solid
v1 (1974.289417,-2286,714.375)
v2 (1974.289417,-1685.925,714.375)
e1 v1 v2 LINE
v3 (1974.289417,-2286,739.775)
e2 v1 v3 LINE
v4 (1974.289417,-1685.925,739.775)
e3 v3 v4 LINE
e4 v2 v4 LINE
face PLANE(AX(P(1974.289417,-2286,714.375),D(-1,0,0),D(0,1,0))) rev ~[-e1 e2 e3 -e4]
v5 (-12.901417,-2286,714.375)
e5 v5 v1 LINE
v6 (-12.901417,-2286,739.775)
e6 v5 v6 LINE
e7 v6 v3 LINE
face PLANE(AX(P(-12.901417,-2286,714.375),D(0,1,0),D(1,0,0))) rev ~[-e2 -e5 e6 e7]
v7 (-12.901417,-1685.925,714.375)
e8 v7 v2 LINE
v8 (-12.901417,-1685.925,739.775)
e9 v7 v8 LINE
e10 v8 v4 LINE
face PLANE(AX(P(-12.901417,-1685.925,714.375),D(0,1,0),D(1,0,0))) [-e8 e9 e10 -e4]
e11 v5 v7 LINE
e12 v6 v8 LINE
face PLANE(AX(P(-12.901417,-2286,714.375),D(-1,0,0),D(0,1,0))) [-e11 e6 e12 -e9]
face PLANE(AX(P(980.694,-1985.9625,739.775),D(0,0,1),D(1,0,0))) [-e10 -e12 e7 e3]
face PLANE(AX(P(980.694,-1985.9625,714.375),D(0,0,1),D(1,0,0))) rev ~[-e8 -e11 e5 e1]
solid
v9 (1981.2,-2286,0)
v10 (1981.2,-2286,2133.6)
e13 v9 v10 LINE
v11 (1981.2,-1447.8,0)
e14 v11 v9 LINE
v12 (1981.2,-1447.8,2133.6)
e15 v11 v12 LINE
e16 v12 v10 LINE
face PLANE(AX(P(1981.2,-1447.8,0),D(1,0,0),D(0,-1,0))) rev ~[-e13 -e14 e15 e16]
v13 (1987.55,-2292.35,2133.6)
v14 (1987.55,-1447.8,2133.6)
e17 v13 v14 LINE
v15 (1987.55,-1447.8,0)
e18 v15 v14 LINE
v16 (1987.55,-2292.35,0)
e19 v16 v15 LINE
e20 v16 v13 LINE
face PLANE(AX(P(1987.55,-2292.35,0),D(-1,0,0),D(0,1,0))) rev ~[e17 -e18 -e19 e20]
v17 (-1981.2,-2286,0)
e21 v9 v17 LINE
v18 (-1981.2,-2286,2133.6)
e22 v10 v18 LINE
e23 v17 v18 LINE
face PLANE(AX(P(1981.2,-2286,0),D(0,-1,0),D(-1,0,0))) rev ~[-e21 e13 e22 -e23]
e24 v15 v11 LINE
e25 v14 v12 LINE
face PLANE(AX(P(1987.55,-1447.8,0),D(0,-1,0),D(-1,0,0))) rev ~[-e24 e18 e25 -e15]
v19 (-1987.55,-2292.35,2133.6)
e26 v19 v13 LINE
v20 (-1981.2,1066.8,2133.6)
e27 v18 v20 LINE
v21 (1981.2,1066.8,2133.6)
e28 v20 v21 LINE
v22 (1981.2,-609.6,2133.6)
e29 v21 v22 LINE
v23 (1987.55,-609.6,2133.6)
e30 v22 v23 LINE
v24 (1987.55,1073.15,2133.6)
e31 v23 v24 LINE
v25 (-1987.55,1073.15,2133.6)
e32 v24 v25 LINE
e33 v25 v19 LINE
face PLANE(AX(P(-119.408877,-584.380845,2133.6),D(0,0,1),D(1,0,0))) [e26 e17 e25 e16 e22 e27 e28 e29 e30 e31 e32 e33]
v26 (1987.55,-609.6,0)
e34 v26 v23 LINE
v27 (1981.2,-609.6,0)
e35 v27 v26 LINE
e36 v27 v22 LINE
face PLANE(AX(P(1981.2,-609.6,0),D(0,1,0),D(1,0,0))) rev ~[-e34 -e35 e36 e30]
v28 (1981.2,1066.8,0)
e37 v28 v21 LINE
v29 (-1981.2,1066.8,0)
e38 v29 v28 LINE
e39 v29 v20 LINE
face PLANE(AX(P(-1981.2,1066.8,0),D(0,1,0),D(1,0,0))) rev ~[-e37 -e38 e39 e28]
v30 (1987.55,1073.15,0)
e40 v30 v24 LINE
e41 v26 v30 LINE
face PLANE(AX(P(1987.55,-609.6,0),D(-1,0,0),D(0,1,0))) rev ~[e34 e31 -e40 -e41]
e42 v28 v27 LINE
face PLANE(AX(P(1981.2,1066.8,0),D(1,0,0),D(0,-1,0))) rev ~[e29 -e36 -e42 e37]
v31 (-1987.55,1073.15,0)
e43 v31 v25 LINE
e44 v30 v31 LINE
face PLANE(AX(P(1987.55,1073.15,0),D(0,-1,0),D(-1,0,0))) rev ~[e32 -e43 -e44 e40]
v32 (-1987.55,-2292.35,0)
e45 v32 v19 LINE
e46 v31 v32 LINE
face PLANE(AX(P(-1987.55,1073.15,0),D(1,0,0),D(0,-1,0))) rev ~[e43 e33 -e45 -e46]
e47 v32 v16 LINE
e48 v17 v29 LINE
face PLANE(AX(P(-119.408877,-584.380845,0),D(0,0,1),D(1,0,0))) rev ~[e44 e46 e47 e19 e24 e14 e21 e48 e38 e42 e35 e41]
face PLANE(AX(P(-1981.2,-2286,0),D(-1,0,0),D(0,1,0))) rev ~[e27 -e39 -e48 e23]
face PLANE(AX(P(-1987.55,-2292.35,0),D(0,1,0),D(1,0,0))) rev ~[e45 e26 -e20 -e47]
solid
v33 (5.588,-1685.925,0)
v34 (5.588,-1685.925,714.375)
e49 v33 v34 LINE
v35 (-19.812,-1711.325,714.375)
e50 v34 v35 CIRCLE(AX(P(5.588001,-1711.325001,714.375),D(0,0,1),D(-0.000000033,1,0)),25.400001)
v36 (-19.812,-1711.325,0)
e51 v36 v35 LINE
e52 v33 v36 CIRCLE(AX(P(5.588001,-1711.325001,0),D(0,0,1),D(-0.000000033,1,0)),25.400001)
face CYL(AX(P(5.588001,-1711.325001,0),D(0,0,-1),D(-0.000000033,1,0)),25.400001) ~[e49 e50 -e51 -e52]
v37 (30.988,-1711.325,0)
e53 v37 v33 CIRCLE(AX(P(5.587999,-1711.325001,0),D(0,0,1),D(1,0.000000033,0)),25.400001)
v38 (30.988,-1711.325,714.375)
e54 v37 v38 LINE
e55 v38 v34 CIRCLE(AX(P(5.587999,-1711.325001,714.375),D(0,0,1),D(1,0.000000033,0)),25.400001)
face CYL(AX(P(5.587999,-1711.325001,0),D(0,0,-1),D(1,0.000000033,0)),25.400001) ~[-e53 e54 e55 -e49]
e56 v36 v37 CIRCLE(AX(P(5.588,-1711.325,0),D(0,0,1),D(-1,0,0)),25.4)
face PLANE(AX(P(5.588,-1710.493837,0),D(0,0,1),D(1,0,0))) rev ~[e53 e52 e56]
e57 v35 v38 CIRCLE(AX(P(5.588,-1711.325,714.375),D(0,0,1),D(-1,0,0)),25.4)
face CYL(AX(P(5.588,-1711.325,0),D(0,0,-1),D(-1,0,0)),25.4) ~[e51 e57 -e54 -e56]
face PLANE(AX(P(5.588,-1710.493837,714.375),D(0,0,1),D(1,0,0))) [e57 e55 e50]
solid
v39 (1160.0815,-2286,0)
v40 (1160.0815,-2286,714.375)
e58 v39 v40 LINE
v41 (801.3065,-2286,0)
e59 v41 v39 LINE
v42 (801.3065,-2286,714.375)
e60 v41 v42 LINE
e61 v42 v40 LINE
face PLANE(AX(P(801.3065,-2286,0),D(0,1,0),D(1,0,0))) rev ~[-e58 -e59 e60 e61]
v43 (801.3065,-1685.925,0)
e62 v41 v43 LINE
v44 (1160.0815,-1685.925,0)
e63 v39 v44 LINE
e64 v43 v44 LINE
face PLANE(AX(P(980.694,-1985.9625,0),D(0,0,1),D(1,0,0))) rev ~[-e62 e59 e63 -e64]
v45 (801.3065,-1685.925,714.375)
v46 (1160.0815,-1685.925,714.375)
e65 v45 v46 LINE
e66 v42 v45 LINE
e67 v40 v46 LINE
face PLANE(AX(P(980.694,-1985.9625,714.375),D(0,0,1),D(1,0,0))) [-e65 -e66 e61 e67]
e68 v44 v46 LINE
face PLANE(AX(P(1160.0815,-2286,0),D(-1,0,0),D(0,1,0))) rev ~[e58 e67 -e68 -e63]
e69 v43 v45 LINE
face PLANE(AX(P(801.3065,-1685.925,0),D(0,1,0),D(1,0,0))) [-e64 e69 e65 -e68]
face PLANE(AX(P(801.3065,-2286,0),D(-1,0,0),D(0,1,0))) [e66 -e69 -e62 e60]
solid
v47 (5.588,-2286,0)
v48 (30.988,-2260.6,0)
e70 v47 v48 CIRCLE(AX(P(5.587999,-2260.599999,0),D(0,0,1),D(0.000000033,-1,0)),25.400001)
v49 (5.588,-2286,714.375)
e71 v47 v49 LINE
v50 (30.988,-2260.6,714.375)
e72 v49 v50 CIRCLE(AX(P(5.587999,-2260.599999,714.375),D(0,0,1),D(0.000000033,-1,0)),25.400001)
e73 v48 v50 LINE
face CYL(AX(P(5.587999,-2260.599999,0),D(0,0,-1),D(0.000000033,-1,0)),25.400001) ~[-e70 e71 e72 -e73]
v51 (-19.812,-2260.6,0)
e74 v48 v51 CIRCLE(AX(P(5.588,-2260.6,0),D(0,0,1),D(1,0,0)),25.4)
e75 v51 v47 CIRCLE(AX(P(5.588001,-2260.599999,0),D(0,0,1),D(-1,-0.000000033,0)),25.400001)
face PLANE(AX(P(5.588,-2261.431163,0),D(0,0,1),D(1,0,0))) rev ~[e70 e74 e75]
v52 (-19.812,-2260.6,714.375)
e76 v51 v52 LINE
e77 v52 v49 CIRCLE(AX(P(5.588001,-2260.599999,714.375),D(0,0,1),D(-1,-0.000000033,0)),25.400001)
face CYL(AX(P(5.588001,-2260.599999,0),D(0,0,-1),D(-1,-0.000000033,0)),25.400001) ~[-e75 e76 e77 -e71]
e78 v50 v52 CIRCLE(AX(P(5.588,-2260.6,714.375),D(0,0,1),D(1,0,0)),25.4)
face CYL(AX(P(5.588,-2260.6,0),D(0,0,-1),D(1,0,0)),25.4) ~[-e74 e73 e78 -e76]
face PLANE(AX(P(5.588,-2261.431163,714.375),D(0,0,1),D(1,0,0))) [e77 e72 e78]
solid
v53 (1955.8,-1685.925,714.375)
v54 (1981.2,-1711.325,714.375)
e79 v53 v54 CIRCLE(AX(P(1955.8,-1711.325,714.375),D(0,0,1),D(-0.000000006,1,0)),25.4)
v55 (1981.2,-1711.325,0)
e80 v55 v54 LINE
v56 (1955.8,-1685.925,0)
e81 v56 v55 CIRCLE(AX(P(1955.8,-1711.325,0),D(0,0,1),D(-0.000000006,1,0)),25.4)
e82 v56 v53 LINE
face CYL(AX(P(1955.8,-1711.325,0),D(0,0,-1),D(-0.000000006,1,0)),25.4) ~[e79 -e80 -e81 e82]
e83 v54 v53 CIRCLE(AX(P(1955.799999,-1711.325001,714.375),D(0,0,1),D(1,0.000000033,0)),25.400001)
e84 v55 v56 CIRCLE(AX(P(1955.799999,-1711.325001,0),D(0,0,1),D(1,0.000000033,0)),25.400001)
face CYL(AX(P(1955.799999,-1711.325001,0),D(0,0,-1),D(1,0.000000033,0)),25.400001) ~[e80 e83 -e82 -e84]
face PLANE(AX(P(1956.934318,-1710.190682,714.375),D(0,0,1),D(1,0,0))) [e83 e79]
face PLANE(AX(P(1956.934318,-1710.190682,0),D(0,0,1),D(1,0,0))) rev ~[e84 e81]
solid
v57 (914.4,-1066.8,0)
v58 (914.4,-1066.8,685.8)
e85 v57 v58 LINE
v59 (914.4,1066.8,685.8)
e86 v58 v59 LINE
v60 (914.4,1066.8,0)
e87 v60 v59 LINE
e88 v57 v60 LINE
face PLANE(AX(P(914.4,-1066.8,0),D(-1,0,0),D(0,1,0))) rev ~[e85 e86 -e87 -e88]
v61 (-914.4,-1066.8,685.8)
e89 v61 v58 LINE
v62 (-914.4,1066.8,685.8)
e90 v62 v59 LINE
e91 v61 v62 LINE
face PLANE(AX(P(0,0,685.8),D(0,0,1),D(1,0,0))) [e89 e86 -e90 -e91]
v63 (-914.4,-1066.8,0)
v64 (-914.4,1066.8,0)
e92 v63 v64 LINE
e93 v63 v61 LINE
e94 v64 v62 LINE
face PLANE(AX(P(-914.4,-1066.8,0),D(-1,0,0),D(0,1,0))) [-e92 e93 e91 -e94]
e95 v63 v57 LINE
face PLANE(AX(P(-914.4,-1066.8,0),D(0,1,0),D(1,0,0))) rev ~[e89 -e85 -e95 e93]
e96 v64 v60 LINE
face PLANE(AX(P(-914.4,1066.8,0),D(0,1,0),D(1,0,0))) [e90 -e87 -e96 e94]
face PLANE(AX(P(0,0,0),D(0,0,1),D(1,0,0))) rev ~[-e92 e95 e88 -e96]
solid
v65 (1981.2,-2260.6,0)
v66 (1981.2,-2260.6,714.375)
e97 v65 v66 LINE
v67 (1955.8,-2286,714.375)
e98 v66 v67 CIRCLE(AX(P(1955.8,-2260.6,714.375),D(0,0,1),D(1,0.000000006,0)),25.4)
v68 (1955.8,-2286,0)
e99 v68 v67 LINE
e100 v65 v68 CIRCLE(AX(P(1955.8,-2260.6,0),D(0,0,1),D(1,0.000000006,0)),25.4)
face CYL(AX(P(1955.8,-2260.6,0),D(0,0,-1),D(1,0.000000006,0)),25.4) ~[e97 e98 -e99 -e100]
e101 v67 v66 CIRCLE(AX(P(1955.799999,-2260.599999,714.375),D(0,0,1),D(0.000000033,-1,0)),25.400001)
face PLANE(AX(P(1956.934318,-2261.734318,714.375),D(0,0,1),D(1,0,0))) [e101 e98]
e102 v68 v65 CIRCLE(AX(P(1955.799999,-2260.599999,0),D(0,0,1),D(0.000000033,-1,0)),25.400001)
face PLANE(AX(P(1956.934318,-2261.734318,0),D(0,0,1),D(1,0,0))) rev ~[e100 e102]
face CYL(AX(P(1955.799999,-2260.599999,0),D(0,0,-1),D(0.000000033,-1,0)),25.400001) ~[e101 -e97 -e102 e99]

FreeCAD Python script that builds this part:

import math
import FreeCAD as App
import Part
import Sketcher
from FreeCAD import Vector
Q = App.Units.Quantity


def add_polygon(sketch, points):
    """Adds a closed chain of lines whose ends are joined by coincident constraints."""
    first, n = sketch.GeometryCount, len(points)
    for a, b in zip(points, points[1:] + points[:1]):
        sketch.addGeometry(Part.LineSegment(App.Vector(*a, 0), App.Vector(*b, 0)), False)
    for i in range(n):
        sketch.addConstraint(Sketcher.Constraint("Coincident", first + i, 2, first + (i + 1) % n, 1))

doc = App.newDocument("Part")
body = doc.addObject("PartDesign::Body", "Body")

# Sketch on XY plane
sketch1 = body.newObject("Sketcher::SketchObject", "Sketch")
sketch1.AttachmentSupport = (doc.getObject("XY_Plane"), [""])
sketch1.MapMode = "FlatFace"
add_polygon(sketch1, [(-914, 1067), (-914, -1067), (914, -1067), (914, 1067)])  # lines 0-3
sketch1.addConstraint(Sketcher.Constraint("Vertical", 0))
sketch1.addConstraint(Sketcher.Constraint("Horizontal", 1))
sketch1.addConstraint(Sketcher.Constraint("Vertical", 2))
sketch1.addConstraint(Sketcher.Constraint("Horizontal", 3))
sketch1.addConstraint(Sketcher.Constraint("Symmetric", 0, 2, 2, 2, -1, 1))
sketch1.addConstraint(Sketcher.Constraint("DistanceX", 1, 1, 1, 2, Q("72 in")))
sketch1.addConstraint(Sketcher.Constraint("DistanceY", 0, 2, 0, 1, Q("84 in")))
pad1 = body.newObject("PartDesign::Pad", "Pad")
pad1.Profile = sketch1
pad1.Length = Q("27 in")
body2 = doc.addObject("PartDesign::Body", "Body001")
body2.AllowCompound = True

# Sketch on XY plane
sketch2 = body2.newObject("Sketcher::SketchObject", "Sketch001")
sketch2.AttachmentSupport = (doc.getObject("XY_Plane001"), [""])
sketch2.MapMode = "FlatFace"
add_polygon(sketch2, [(801, -1686), (801, -2286), (1160, -2286), (1160, -1686)])  # lines 0-3
sketch2.addGeometry(Part.ArcOfCircle(Part.Circle(Vector(1956, -2261, 0), Vector(0, 0, 1), 25), math.radians(-90), math.radians(0)), False)  # 4
sketch2.addGeometry(Part.ArcOfCircle(Part.Circle(Vector(1956, -2261, 0), Vector(0, 0, 1), 25), math.radians(0), math.radians(270)), False)  # 5
sketch2.addGeometry(Part.ArcOfCircle(Part.Circle(Vector(1956, -1711, 0), Vector(0, 0, 1), 25), math.radians(90), math.radians(360)), False)  # 6
sketch2.addGeometry(Part.ArcOfCircle(Part.Circle(Vector(1956, -1711, 0), Vector(0, 0, 1), 25), math.radians(0), math.radians(90)), False)  # 7
sketch2.addGeometry(Part.ArcOfCircle(Part.Circle(Vector(6, -2261, 0), Vector(0, 0, 1), 25), math.radians(-180), math.radians(-90)), False)  # 8
sketch2.addGeometry(Part.ArcOfCircle(Part.Circle(Vector(6, -2261, 0), Vector(0, 0, 1), 25), math.radians(-90), math.radians(0)), False)  # 9
sketch2.addGeometry(Part.ArcOfCircle(Part.Circle(Vector(6, -2261, 0), Vector(0, 0, 1), 25), math.radians(0), math.radians(180)), False)  # 10
sketch2.addGeometry(Part.ArcOfCircle(Part.Circle(Vector(6, -1711, 0), Vector(0, 0, 1), 25), math.radians(90), math.radians(180)), False)  # 11
sketch2.addGeometry(Part.ArcOfCircle(Part.Circle(Vector(6, -1711, 0), Vector(0, 0, 1), 25), math.radians(180), math.radians(360)), False)  # 12
sketch2.addGeometry(Part.ArcOfCircle(Part.Circle(Vector(6, -1711, 0), Vector(0, 0, 1), 25), math.radians(0), math.radians(90)), False)  # 13
sketch2.addConstraint(Sketcher.Constraint("Tangent", 4, 1, 5, 2))
sketch2.addConstraint(Sketcher.Constraint("Coincident", 5, 1, 4, 2))
sketch2.addConstraint(Sketcher.Constraint("Tangent", 6, 1, 7, 2))
sketch2.addConstraint(Sketcher.Constraint("Coincident", 7, 1, 6, 2))
sketch2.addConstraint(Sketcher.Constraint("Tangent", 8, 2, 9, 1))
sketch2.addConstraint(Sketcher.Constraint("Tangent", 9, 2, 10, 1))
sketch2.addConstraint(Sketcher.Constraint("Tangent", 10, 2, 8, 1))
sketch2.addConstraint(Sketcher.Constraint("Tangent", 11, 2, 12, 1))
sketch2.addConstraint(Sketcher.Constraint("Tangent", 12, 2, 13, 1))
sketch2.addConstraint(Sketcher.Constraint("Tangent", 13, 2, 11, 1))
sketch2.addConstraint(Sketcher.Constraint("Vertical", 0))
sketch2.addConstraint(Sketcher.Constraint("Horizontal", 1))
sketch2.addConstraint(Sketcher.Constraint("Vertical", 2))
sketch2.addConstraint(Sketcher.Constraint("Horizontal", 3))
sketch2.addConstraint(Sketcher.Constraint("Equal", 5, 6))
sketch2.addConstraint(Sketcher.Constraint("Equal", 7, 8))
sketch2.addConstraint(Sketcher.Constraint("Equal", 10, 11))
sketch2.addConstraint(Sketcher.Constraint("Horizontal", 5, 3, 8, 3))
sketch2.addConstraint(Sketcher.Constraint("Horizontal", 7, 3, 11, 3))
sketch2.addConstraint(Sketcher.Constraint("Horizontal", 1, 2, 4, 1))
sketch2.addConstraint(Sketcher.Constraint("Horizontal", 10, 3, 5, 1))
sketch2.addConstraint(Sketcher.Constraint("Horizontal", 3, 2, 6, 1))
sketch2.addConstraint(Sketcher.Constraint("Horizontal", 13, 3, 7, 1))
sketch2.addConstraint(Sketcher.Constraint("Horizontal", 5, 1, 9, 2))
sketch2.addConstraint(Sketcher.Constraint("Horizontal", 9, 2, 10, 2))
sketch2.addConstraint(Sketcher.Constraint("Horizontal", 7, 1, 11, 2))
sketch2.addConstraint(Sketcher.Constraint("Horizontal", 11, 2, 12, 2))
sketch2.addConstraint(Sketcher.Constraint("Vertical", 5, 3, 6, 3))
sketch2.addConstraint(Sketcher.Constraint("Vertical", 10, 3, 11, 3))
sketch2.addConstraint(Sketcher.Constraint("Vertical", 7, 3, 4, 1))
sketch2.addConstraint(Sketcher.Constraint("Vertical", 4, 1, 6, 1))
sketch2.addConstraint(Sketcher.Constraint("Vertical", 13, 3, 8, 2))
sketch2.addConstraint(Sketcher.Constraint("Vertical", 8, 2, 13, 2))
sketch2.addConstraint(Sketcher.Constraint("Radius", 4, Q("1 in")))
sketch2.addConstraint(Sketcher.Constraint("DistanceX", -1, 1, 4, 3, Q("77 in")))
sketch2.addConstraint(Sketcher.Constraint("DistanceY", 4, 3, -1, 1, Q("89 in")))
sketch2.addConstraint(Sketcher.Constraint("DistanceX", 1, 1, 1, 2, Q("14.125 in")))
sketch2.addConstraint(Sketcher.Constraint("DistanceY", 0, 2, 0, 1, Q("23.625 in")))
sketch2.addConstraint(Sketcher.Constraint("DistanceX", -1, 1, 8, 3, Q("0.22 in")))
sketch2.addConstraint(Sketcher.Constraint("DistanceX", -1, 1, 0, 2, Q("31.5475 in")))
pad2 = body2.newObject("PartDesign::Pad", "Pad001")
pad2.Profile = sketch2
pad2.Length = Q("28.125 in")
body3 = doc.addObject("PartDesign::Body", "Body002")

# Sketch on XY plane
sketch3 = body3.newObject("Sketcher::SketchObject", "Sketch002")
sketch3.AttachmentSupport = (doc.getObject("XY_Plane002"), [""])
sketch3.MapMode = "FlatFace"
sketch3.AttachmentOffset = App.Placement(Vector(0, 0, 28.125 * 25.4), App.Rotation())
add_polygon(sketch3, [(-13, -1686), (-13, -2286), (1974, -2286), (1974, -1686)])  # lines 0-3
sketch3.addConstraint(Sketcher.Constraint("Vertical", 0))
sketch3.addConstraint(Sketcher.Constraint("Horizontal", 1))
sketch3.addConstraint(Sketcher.Constraint("Vertical", 2))
sketch3.addConstraint(Sketcher.Constraint("Horizontal", 3))
sketch3.addConstraint(Sketcher.Constraint("DistanceY", 0, 2, -1, 1, Q("90 in")))
sketch3.addConstraint(Sketcher.Constraint("DistanceY", 0, 2, 0, 1, Q("23.625 in")))
sketch3.addConstraint(Sketcher.Constraint("DistanceX", 1, 1, 1, 2, 1987.190834))
sketch3.addConstraint(Sketcher.Constraint("DistanceX", 0, 2, -1, 1, 12.901417))
pad3 = body3.newObject("PartDesign::Pad", "Pad002")
pad3.Profile = sketch3
pad3.Length = Q("1 in")
body4 = doc.addObject("PartDesign::Body", "Body003")

# Sketch on XY plane
sketch4 = body4.newObject("Sketcher::SketchObject", "Sketch003")
sketch4.AttachmentSupport = (doc.getObject("XY_Plane003"), [""])
sketch4.MapMode = "FlatFace"
add_polygon(sketch4, [(-1981, -2286), (-1981, 1067), (1981, 1067), (1981, -610), (1988, -610), (1988, 1073), (-1988, 1073), (-1988, -2292), (1988, -2292), (1988, -1448), (1981, -1448), (1981, -2286)])  # lines 0-11
sketch4.addConstraint(Sketcher.Constraint("Vertical", 0))
sketch4.addConstraint(Sketcher.Constraint("Horizontal", 1))
sketch4.addConstraint(Sketcher.Constraint("Vertical", 2))
sketch4.addConstraint(Sketcher.Constraint("Horizontal", 3))
sketch4.addConstraint(Sketcher.Constraint("Vertical", 4))
sketch4.addConstraint(Sketcher.Constraint("Horizontal", 5))
sketch4.addConstraint(Sketcher.Constraint("Vertical", 6))
sketch4.addConstraint(Sketcher.Constraint("Horizontal", 7))
sketch4.addConstraint(Sketcher.Constraint("Vertical", 8))
sketch4.addConstraint(Sketcher.Constraint("Horizontal", 9))
sketch4.addConstraint(Sketcher.Constraint("Vertical", 10))
sketch4.addConstraint(Sketcher.Constraint("Horizontal", 11))
sketch4.addConstraint(Sketcher.Constraint("Vertical", 4, 2, 7, 2))
sketch4.addConstraint(Sketcher.Constraint("Vertical", 2, 2, 9, 2))
sketch4.addConstraint(Sketcher.Constraint("DistanceX", 1, 1, 1, 2, Q("156 in")))
sketch4.addConstraint(Sketcher.Constraint("DistanceY", 0, 1, 0, 2, Q("132 in")))
sketch4.addConstraint(Sketcher.Constraint("DistanceY", 2, 2, 2, 1, Q("66 in")))
sketch4.addConstraint(Sketcher.Constraint("DistanceY", 10, 2, 10, 1, Q("33 in")))
sketch4.addConstraint(Sketcher.Constraint("DistanceX", 5, 2, 5, 1, Q("156.5 in")))
sketch4.addConstraint(Sketcher.Constraint("DistanceY", 6, 2, 6, 1, Q("132.5 in")))
sketch4.addConstraint(Sketcher.Constraint("DistanceX", 0, 2, -1, 1, Q("78 in")))
sketch4.addConstraint(Sketcher.Constraint("DistanceY", -1, 1, 0, 2, Q("42 in")))
sketch4.addConstraint(Sketcher.Constraint("DistanceX", 3, 1, 3, 2, Q("0.25 in")))
sketch4.addConstraint(Sketcher.Constraint("DistanceY", 4, 1, 4, 2, Q("66.25 in")))
pad4 = body4.newObject("PartDesign::Pad", "Pad003")
pad4.Profile = sketch4
pad4.Length = Q("84 in")

doc.recompute()
